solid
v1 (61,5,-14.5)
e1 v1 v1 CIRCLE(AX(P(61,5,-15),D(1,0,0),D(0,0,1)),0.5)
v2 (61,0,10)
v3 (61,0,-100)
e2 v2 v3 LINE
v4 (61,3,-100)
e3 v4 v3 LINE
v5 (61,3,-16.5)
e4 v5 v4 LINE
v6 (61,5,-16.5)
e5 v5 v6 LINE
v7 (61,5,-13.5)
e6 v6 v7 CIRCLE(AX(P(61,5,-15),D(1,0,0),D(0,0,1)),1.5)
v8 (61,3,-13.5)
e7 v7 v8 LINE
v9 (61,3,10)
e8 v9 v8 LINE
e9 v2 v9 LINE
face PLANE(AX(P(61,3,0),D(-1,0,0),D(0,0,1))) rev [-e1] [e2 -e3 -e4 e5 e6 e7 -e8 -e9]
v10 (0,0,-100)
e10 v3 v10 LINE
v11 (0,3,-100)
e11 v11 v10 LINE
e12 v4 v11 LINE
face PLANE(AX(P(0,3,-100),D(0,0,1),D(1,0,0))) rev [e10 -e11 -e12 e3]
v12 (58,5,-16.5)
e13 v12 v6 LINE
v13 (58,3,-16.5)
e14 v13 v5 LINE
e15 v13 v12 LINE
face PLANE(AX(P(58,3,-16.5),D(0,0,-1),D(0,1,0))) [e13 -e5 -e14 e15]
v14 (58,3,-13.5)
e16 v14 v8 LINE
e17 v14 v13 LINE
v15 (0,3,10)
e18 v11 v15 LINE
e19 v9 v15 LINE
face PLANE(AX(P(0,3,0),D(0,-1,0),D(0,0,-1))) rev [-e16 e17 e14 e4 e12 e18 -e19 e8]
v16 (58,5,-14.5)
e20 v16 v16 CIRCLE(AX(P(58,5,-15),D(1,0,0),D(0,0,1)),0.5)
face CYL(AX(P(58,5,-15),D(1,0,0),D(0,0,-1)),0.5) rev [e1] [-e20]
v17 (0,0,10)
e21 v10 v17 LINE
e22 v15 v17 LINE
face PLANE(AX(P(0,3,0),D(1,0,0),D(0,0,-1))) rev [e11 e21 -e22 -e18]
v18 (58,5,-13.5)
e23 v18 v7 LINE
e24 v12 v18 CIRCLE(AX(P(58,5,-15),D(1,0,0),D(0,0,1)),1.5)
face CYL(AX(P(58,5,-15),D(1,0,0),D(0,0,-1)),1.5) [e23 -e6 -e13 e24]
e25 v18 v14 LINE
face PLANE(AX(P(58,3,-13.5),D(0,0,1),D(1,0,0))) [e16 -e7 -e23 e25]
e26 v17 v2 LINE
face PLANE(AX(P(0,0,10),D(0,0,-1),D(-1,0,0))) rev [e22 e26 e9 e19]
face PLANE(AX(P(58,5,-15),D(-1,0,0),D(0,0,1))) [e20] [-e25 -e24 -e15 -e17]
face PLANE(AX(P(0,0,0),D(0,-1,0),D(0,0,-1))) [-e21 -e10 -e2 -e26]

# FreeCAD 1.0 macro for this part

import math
import FreeCAD as App
import Part
import Sketcher


def add_polygon(sketch, points):
    """Adds a closed chain of lines whose ends are joined by coincident constraints."""
    first, n = sketch.GeometryCount, len(points)
    for a, b in zip(points, points[1:] + points[:1]):
        sketch.addGeometry(Part.LineSegment(App.Vector(*a, 0), App.Vector(*b, 0)), False)
    for i in range(n):
        sketch.addConstraint(Sketcher.Constraint("Coincident", first + i, 2, first + (i + 1) % n, 1))

doc = App.newDocument("Part")
body = doc.addObject("PartDesign::Body", "Body")

sketch1 = body.newObject("Sketcher::SketchObject", "Sketch")
sketch1.AttachmentSupport = (doc.getObject("XZ_Plane"), [""])
sketch1.MapMode = "FlatFace"
add_polygon(sketch1, [(0, -100), (0, 0), (61, 0), (61, -100)])
sketch1.addConstraint(Sketcher.Constraint("Vertical", 0))
sketch1.addConstraint(Sketcher.Constraint("Horizontal", 1))
sketch1.addConstraint(Sketcher.Constraint("Vertical", 2))
sketch1.addConstraint(Sketcher.Constraint("Horizontal", 3))
sketch1.addConstraint(Sketcher.Constraint("Coincident", 0, 2, -1, 1))
sketch1.addConstraint(Sketcher.Constraint("DistanceX", 1, 1, 1, 2, 61.0))
sketch1.addConstraint(Sketcher.Constraint("DistanceY", 0, 1, 0, 2, 100.0))
pad1 = body.newObject("PartDesign::Pad", "Pad")
pad1.Profile = sketch1
pad1.Length = 3
pad1.Reversed = True

sketch2 = body.newObject("Sketcher::SketchObject", "Sketch001")
sketch2.AttachmentSupport = (doc.getObject("XY_Plane"), [""])
sketch2.MapMode = "FlatFace"
add_polygon(sketch2, [(0, 3), (0, 0), (61, 0), (61, 3)])
sketch2.addConstraint(Sketcher.Constraint("Vertical", 0))
sketch2.addConstraint(Sketcher.Constraint("Horizontal", 1))
sketch2.addConstraint(Sketcher.Constraint("Vertical", 2))
sketch2.addConstraint(Sketcher.Constraint("Horizontal", 3))
sketch2.addConstraint(Sketcher.Constraint("Coincident", 0, 2, -1, 1))
sketch2.addConstraint(Sketcher.Constraint("DistanceX", 1, 1, 1, 2, 61.0))
sketch2.addConstraint(Sketcher.Constraint("DistanceY", 0, 2, 0, 1, 3.0))
pad2 = body.newObject("PartDesign::Pad", "Pad001")
pad2.Profile = sketch2
pad2.Length = 10

sketch3 = body.newObject("Sketcher::SketchObject", "Sketch002")
sketch3.AttachmentSupport = (doc.getObject("YZ_Plane"), [""])
sketch3.MapMode = "FlatFace"
sketch3.AttachmentOffset = App.Placement(App.Vector(0, 0, 61), App.Rotation())
sketch3.addGeometry(Part.LineSegment(App.Vector(3, -13.5, 0), App.Vector(3, -16.5, 0)), False)
sketch3.addGeometry(Part.LineSegment(App.Vector(3, -16.5, 0), App.Vector(5, -16.5, 0)), False)
sketch3.addGeometry(Part.ArcOfCircle(Part.Circle(App.Vector(5, -15, 0), App.Vector(0, 0, 1), 1.5), math.radians(-90), math.radians(90)), False)
sketch3.addGeometry(Part.LineSegment(App.Vector(5, -13.5, 0), App.Vector(3, -13.5, 0)), False)
sketch3.addGeometry(Part.Circle(App.Vector(5, -15, 0), App.Vector(0, 0, 1), 0.5), False)
sketch3.addConstraint(Sketcher.Constraint("Coincident", 0, 2, 1, 1))
sketch3.addConstraint(Sketcher.Constraint("Tangent", 1, 2, 2, 1))
sketch3.addConstraint(Sketcher.Constraint("Tangent", 2, 2, 3, 1))
sketch3.addConstraint(Sketcher.Constraint("Coincident", 3, 2, 0, 1))
sketch3.addConstraint(Sketcher.Constraint("Vertical", 0))
sketch3.addConstraint(Sketcher.Constraint("Horizontal", 1))
sketch3.addConstraint(Sketcher.Constraint("Horizontal", 3))
sketch3.addConstraint(Sketcher.Constraint("Coincident", 4, 3, 2, 3))
sketch3.addConstraint(Sketcher.Constraint("Diameter", 4, 1.0))
sketch3.addConstraint(Sketcher.Constraint("Radius", 2, 1.5))
sketch3.addConstraint(Sketcher.Constraint("DistanceX", 1, 1, 1, 2, 2.0))
sketch3.addConstraint(Sketcher.Constraint("DistanceX", -1, 1, 2, 3, 5.0))
sketch3.addConstraint(Sketcher.Constraint("DistanceY", 2, 3, -1, 1, 15.0))
pad3 = body.newObject("PartDesign::Pad", "Pad002")
pad3.Profile = sketch3
pad3.Length = 3
pad3.Reversed = True

doc.recompute()
